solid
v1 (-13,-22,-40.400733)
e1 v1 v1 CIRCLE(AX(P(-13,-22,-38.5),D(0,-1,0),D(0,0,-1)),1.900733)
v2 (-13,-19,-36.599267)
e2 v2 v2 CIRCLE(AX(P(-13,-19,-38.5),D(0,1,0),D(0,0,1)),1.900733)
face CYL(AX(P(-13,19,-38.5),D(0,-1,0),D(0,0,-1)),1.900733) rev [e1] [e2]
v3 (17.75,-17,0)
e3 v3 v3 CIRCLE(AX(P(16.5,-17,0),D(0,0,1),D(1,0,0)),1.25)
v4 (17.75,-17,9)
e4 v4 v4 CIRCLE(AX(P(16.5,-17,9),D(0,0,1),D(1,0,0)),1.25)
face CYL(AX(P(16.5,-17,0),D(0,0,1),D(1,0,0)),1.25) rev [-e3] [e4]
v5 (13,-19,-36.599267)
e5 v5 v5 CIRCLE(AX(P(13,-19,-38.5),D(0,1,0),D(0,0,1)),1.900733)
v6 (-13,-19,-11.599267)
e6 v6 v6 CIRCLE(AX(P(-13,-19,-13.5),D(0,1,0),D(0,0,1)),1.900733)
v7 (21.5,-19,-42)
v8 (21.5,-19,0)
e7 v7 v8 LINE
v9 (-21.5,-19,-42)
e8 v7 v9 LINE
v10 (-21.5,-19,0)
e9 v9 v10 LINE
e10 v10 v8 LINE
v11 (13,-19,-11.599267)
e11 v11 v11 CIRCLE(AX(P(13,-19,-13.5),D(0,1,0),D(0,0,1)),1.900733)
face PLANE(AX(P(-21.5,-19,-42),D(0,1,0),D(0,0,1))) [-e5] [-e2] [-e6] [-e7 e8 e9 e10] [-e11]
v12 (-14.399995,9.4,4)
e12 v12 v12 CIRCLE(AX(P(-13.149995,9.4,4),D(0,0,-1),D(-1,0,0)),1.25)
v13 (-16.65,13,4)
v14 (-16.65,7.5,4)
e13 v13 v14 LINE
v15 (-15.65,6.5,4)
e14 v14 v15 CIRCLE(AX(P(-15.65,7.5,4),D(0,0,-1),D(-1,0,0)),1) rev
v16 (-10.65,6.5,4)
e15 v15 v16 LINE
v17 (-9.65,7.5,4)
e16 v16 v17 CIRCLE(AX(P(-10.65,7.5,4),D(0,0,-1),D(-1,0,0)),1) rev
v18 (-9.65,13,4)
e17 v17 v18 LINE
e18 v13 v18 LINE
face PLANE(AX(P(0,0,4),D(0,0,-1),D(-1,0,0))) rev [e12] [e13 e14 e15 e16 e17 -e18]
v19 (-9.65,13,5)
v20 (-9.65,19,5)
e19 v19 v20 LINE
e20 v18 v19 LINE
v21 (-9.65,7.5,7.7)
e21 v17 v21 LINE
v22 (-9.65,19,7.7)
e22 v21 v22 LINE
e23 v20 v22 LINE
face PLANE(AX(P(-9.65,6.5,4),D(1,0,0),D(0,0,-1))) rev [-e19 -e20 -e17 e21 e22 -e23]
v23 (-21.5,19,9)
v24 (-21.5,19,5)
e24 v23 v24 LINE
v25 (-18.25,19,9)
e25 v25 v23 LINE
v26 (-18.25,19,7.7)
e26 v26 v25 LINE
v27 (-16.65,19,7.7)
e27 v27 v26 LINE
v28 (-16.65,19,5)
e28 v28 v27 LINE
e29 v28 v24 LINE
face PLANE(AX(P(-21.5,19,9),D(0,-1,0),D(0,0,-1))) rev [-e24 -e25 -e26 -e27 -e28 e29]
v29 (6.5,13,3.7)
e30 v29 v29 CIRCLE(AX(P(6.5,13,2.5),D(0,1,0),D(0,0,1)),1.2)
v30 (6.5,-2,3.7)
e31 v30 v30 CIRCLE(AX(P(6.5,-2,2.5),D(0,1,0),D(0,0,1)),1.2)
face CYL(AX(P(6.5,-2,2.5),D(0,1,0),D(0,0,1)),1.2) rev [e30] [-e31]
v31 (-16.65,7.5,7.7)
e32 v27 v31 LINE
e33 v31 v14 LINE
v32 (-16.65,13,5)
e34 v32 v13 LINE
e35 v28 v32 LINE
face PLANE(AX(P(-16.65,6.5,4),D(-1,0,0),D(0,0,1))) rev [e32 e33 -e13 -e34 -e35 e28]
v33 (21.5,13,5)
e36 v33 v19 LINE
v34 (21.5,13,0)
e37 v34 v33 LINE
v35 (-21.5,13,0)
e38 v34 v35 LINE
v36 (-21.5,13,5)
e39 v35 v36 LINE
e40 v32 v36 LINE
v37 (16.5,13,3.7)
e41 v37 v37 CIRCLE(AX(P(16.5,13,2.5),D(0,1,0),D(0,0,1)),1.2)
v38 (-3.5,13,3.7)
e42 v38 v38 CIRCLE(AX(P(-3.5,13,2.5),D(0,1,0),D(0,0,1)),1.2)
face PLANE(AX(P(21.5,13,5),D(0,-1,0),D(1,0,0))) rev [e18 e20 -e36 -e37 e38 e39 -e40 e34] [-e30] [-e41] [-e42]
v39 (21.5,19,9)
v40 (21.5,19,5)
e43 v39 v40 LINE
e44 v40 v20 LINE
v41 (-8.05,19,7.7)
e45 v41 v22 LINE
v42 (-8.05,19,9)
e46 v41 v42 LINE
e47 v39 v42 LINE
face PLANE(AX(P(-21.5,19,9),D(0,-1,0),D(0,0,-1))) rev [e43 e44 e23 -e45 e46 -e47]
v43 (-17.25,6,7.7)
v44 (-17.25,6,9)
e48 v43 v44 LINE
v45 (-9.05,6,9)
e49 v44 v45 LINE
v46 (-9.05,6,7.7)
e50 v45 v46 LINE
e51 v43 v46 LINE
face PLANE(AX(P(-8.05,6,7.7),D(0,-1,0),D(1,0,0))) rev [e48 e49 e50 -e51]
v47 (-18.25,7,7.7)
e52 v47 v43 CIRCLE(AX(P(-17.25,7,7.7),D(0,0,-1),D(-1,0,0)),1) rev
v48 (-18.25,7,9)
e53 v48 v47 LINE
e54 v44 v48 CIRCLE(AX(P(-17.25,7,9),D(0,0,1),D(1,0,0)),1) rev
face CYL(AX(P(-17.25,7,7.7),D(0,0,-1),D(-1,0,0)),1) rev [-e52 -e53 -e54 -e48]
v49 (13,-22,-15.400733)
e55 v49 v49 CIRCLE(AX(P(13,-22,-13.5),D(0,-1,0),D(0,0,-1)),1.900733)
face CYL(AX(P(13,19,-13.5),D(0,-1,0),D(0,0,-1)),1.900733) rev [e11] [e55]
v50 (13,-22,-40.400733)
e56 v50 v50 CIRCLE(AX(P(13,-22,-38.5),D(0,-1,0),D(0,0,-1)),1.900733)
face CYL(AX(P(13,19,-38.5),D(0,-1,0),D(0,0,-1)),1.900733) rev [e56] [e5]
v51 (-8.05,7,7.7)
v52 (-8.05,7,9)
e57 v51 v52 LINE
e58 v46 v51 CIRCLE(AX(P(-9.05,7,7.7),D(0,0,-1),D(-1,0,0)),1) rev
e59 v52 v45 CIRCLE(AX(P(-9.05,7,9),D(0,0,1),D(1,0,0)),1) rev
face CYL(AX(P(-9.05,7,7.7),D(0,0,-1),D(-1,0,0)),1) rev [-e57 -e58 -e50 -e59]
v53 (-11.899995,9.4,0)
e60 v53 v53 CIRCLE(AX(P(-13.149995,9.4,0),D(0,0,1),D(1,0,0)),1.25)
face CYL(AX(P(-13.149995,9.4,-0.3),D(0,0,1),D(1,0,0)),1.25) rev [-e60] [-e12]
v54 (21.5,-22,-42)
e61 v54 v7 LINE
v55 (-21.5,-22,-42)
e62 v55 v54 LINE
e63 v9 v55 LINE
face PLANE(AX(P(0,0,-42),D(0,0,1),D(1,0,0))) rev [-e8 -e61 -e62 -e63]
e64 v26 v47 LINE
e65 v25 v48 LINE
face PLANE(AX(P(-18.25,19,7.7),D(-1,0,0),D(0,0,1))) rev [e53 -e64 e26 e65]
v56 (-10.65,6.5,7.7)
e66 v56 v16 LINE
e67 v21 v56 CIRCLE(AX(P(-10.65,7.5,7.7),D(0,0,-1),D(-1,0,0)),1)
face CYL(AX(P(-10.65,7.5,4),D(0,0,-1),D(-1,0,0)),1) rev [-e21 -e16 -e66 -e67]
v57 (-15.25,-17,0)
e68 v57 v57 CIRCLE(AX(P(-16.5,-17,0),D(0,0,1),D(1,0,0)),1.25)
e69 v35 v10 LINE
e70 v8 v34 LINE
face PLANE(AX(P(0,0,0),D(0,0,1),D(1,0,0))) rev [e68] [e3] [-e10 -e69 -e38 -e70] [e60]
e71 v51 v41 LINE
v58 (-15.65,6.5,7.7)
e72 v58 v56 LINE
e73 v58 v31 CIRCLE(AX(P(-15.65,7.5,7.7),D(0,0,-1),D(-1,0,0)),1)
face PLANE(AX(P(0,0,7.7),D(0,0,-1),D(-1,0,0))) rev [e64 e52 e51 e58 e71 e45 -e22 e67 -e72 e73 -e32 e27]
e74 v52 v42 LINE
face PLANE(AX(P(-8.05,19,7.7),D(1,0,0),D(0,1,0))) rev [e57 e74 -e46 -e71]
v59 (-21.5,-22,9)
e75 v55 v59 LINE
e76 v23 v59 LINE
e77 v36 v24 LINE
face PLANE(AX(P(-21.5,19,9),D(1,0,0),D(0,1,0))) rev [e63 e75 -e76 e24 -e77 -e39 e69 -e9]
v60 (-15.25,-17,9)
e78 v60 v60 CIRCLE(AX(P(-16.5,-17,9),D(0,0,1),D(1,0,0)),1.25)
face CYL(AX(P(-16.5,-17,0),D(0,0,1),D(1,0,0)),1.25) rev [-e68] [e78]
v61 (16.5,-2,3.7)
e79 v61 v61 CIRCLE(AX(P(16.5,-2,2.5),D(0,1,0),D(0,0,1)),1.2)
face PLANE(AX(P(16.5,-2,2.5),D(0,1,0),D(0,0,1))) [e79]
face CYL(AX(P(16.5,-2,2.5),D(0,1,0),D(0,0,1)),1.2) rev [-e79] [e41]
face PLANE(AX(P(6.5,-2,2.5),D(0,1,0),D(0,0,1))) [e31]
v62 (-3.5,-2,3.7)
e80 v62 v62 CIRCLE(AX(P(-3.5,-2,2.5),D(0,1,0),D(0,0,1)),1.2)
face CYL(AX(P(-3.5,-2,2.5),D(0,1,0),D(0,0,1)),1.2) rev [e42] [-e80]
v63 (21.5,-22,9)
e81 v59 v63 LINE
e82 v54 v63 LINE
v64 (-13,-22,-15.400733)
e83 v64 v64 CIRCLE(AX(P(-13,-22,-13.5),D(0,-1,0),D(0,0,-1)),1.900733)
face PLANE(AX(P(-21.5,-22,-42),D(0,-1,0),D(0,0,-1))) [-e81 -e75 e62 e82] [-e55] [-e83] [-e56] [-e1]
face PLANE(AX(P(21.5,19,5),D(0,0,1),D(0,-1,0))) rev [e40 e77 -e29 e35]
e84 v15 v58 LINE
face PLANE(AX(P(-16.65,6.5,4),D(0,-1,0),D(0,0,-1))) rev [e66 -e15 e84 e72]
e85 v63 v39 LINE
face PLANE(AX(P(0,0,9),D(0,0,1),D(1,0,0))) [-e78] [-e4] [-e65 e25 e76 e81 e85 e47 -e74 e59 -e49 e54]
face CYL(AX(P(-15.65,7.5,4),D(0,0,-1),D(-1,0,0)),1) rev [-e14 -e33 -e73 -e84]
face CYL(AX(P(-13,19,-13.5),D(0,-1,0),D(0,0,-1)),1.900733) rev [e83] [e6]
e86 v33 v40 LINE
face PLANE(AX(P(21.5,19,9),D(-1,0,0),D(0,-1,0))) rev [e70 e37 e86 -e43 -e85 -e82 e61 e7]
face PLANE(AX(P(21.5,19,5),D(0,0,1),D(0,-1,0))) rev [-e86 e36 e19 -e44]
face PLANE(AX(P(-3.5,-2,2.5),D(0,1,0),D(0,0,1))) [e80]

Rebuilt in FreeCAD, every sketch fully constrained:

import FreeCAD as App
import Part
import Sketcher

V = App.Vector
Q = App.Units.Quantity


def edges_at(feature, points):
    """Names of the edges that pass closest to the given points."""
    edges = feature.Shape.Edges
    near = lambda p: min(range(len(edges)), key=lambda i: edges[i].distToShape(Part.Vertex(*p))[0])
    return sorted({f"Edge{near(p) + 1}" for p in points})


def add_polygon(sketch, points):
    """Adds a closed chain of lines whose ends are joined by coincident constraints."""
    first, n = sketch.GeometryCount, len(points)
    for a, b in zip(points, points[1:] + points[:1]):
        sketch.addGeometry(Part.LineSegment(App.Vector(*a, 0), App.Vector(*b, 0)), False)
    for i in range(n):
        sketch.addConstraint(Sketcher.Constraint("Coincident", first + i, 2, first + (i + 1) % n, 1))

doc = App.newDocument("Part")
params = doc.addObject("Spreadsheet::Sheet", "Params")
for row, (alias, value) in enumerate([
    ("sketch1_width", "43 mm"),
    ("sketch1_height", "38 mm"),
    ("pad1_length", "9 mm"),
    ("sketch2_width", "43 mm"),
    ("sketch2_height", "3 mm"),
    ("pad2_length", "51 mm"),
    ("sketch4_width", "6 mm"),
    ("sketch4_height", "5 mm"),
    ("sketch5_diameter", "2.5 mm"),
    ("pocket3_length", "9 mm"),
    ("sketch6_diameter", "2.4 mm"),
    ("pocket4_length", "15 mm"),
    ("sketch7_height", "13 mm"),
    ("sketch7_width", "10.2 mm"),
    ("pocket5_length", "1.3 mm"),
    ("sketch8_width", "7 mm"),
    ("sketch8_height", "12.5 mm"),
    ("pocket6_length", "3.7 mm"),
    ("sketch9_diameter", "2.5 mm"),
    ("pocket7_length", "8 mm"),
    ("fillet_radius", "1 mm"),
    ("fillet2_radius", "1 mm"),
], start=1):
    params.set(f"A{row}", alias)
    params.set(f"B{row}", "=" + value)
    params.setAlias(f"B{row}", alias)

body = doc.addObject("PartDesign::Body", "Body")

sketch1 = doc.addObject("Sketcher::SketchObject", "Sketch")
body.addObject(sketch1)
sketch1.AttachmentSupport = (doc.XY_Plane, [""])
sketch1.MapMode = "FlatFace"
add_polygon(sketch1, [(-22, 19), (-22, -19), (22, -19), (22, 19)])
sketch1.addConstraint([
    Sketcher.Constraint("Vertical", 0),
    Sketcher.Constraint("Horizontal", 1),
    Sketcher.Constraint("Vertical", 2),
    Sketcher.Constraint("Horizontal", 3),
    Sketcher.Constraint("Symmetric", 0, 2, 2, 2, -1, 1),
    Sketcher.Constraint("DistanceX", 1, 1, 1, 2, Q("43 mm")),
    Sketcher.Constraint("DistanceY", 0, 2, 0, 1, Q("38 mm")),
])
sketch1.setExpression("Constraints[9]", "Params.sketch1_width")
sketch1.setExpression("Constraints[10]", "Params.sketch1_height")
pad1 = doc.addObject("PartDesign::Pad", "Pad")
body.addObject(pad1)
pad1.Profile = sketch1
pad1.setExpression("Length", "Params.pad1_length")

sketch2 = doc.addObject("Sketcher::SketchObject", "Sketch001")
body.addObject(sketch2)
sketch2.AttachmentSupport = (doc.XY_Plane, [""])
sketch2.MapMode = "FlatFace"
sketch2.AttachmentOffset = App.Placement(V(0, 0, 9), App.Rotation())
add_polygon(sketch2, [(-21.5, -19), (-21.5, -22), (21.5, -22), (21.5, -19)])
sketch2.addConstraint([
    Sketcher.Constraint("Vertical", 0),
    Sketcher.Constraint("Horizontal", 1),
    Sketcher.Constraint("Vertical", 2),
    Sketcher.Constraint("Horizontal", 3),
    Sketcher.Constraint("DistanceX", 1, 1, 1, 2, Q("43 mm")),
    Sketcher.Constraint("DistanceY", 0, 2, 0, 1, Q("3 mm")),
    Sketcher.Constraint("DistanceY", 0, 2, -1, 1, Q("22 mm")),
    Sketcher.Constraint("DistanceX", 0, 2, -1, 1, Q("21.5 mm")),
])
sketch2.setExpression("Constraints[8]", "Params.sketch2_width")
sketch2.setExpression("Constraints[9]", "Params.sketch2_height")
pad2 = doc.addObject("PartDesign::Pad", "Pad001")
body.addObject(pad2)
pad2.Profile = sketch2
pad2.setExpression("Length", "Params.pad2_length")
pad2.Reversed = True

sketch3 = doc.addObject("Sketcher::SketchObject", "Sketch002")
body.addObject(sketch3)
sketch3.AttachmentSupport = (doc.XZ_Plane, [""])
sketch3.MapMode = "FlatFace"
sketch3.AttachmentOffset = App.Placement(V(0, 0, 22), App.Rotation())
sketch3.addGeometry([
    Part.Circle(V(-13, -38.5, 0), V(0, 0, 1), 1.9),
    Part.Circle(V(13, -38.5, 0), V(0, 0, 1), 1.9),
    Part.Circle(V(13, -13.5, 0), V(0, 0, 1), 1.9),
    Part.Circle(V(-13, -13.5, 0), V(0, 0, 1), 1.9),
], False)
sketch3.addConstraint([
    Sketcher.Constraint("Equal", 0, 1),
    Sketcher.Constraint("Equal", 1, 2),
    Sketcher.Constraint("Equal", 2, 3),
    Sketcher.Constraint("Symmetric", 0, 3, 1, 3, -2),
    Sketcher.Constraint("Symmetric", 2, 3, 3, 3, -2),
    Sketcher.Constraint("Vertical", 1, 3, 2, 3),
    Sketcher.Constraint("DistanceX", 0, 3, -1, 1, Q("13 mm")),
    Sketcher.Constraint("DistanceY", 1, 3, 2, 3, Q("25 mm")),
    Sketcher.Constraint("DistanceY", 0, 3, -1, 1, Q("38.5 mm")),
    Sketcher.Constraint("Diameter", 0, Q("3.801467 mm")),
])
pocket1 = doc.addObject("PartDesign::Pocket", "Pocket")
body.addObject(pocket1)
pocket1.Profile = sketch3
pocket1.Type = "ThroughAll"

sketch4 = doc.addObject("Sketcher::SketchObject", "Sketch003")
body.addObject(sketch4)
sketch4.AttachmentSupport = (doc.YZ_Plane, [""])
sketch4.MapMode = "FlatFace"
sketch4.AttachmentOffset = App.Placement(V(0, 0, -21.5), App.Rotation())
add_polygon(sketch4, [(19, 0), (13, 0), (13, 5), (19, 5)])
sketch4.addConstraint([
    Sketcher.Constraint("Horizontal", 0),
    Sketcher.Constraint("Vertical", 1),
    Sketcher.Constraint("Horizontal", 2),
    Sketcher.Constraint("Vertical", 3),
    Sketcher.Constraint("PointOnObject", 0, 2, -1),
    Sketcher.Constraint("DistanceX", 0, 2, 0, 1, Q("6 mm")),
    Sketcher.Constraint("DistanceY", 1, 1, 1, 2, Q("5 mm")),
    Sketcher.Constraint("DistanceX", -1, 1, 0, 2, Q("13 mm")),
])
sketch4.setExpression("Constraints[9]", "Params.sketch4_width")
sketch4.setExpression("Constraints[10]", "Params.sketch4_height")
pocket2 = doc.addObject("PartDesign::Pocket", "Pocket001")
body.addObject(pocket2)
pocket2.Profile = sketch4
pocket2.Type = "ThroughAll"
pocket2.Reversed = True

sketch5 = doc.addObject("Sketcher::SketchObject", "Sketch004")
body.addObject(sketch5)
sketch5.AttachmentSupport = (doc.XY_Plane, [""])
sketch5.MapMode = "FlatFace"
sketch5.AttachmentOffset = App.Placement(V(0, 0, 9), App.Rotation())
sketch5.addGeometry([
    Part.Circle(V(16.5, -17, 0), V(0, 0, 1), 1.2),
    Part.Circle(V(-16.5, -17, 0), V(0, 0, 1), 1.2),
], False)
sketch5.addConstraint([
    Sketcher.Constraint("Equal", 0, 1),
    Sketcher.Constraint("Symmetric", 0, 3, 1, 3, -2),
    Sketcher.Constraint("Diameter", 0, Q("2.5 mm")),
    Sketcher.Constraint("DistanceY", 0, 3, -1, 1, Q("17 mm")),
    Sketcher.Constraint("DistanceX", 1, 3, 0, 3, Q("33 mm")),
])
sketch5.setExpression("Constraints[2]", "Params.sketch5_diameter")
pocket3 = doc.addObject("PartDesign::Pocket", "Pocket002")
body.addObject(pocket3)
pocket3.Profile = sketch5
pocket3.setExpression("Length", "Params.pocket3_length")

sketch6 = doc.addObject("Sketcher::SketchObject", "Sketch005")
body.addObject(sketch6)
sketch6.AttachmentSupport = (doc.XZ_Plane, [""])
sketch6.MapMode = "FlatFace"
sketch6.AttachmentOffset = App.Placement(V(0, 0, -13), App.Rotation())
sketch6.addGeometry([
    Part.Circle(V(16.5, 2.5, 0), V(0, 0, 1), 1.2),
    Part.Circle(V(6.5, 2.5, 0), V(0, 0, 1), 1.2),
    Part.Circle(V(-3.5, 2.5, 0), V(0, 0, 1), 1.2),
], False)
sketch6.addConstraint([
    Sketcher.Constraint("Equal", 0, 1),
    Sketcher.Constraint("Equal", 1, 2),
    Sketcher.Constraint("Horizontal", 0, 3, 1, 3),
    Sketcher.Constraint("Horizontal", 1, 3, 2, 3),
    Sketcher.Constraint("Diameter", 0, Q("2.4 mm")),
    Sketcher.Constraint("DistanceX", 1, 3, 0, 3, Q("10 mm")),
    Sketcher.Constraint("DistanceX", 2, 3, 1, 3, Q("10 mm")),
    Sketcher.Constraint("DistanceX", -1, 1, 0, 3, Q("16.5 mm")),
    Sketcher.Constraint("DistanceY", -1, 1, 0, 3, Q("2.5 mm")),
])
sketch6.setExpression("Constraints[4]", "Params.sketch6_diameter")
pocket4 = doc.addObject("PartDesign::Pocket", "Pocket003")
body.addObject(pocket4)
pocket4.Profile = sketch6
pocket4.setExpression("Length", "Params.pocket4_length")
pocket4.Reversed = True

sketch7 = doc.addObject("Sketcher::SketchObject", "Sketch006")
body.addObject(sketch7)
sketch7.AttachmentSupport = (doc.XY_Plane, [""])
sketch7.MapMode = "FlatFace"
sketch7.AttachmentOffset = App.Placement(V(0, 0, 9), App.Rotation())
add_polygon(sketch7, [(-18, 19), (-18, 6), (-8, 6), (-8, 19)])
sketch7.addConstraint([
    Sketcher.Constraint("Vertical", 0),
    Sketcher.Constraint("Horizontal", 1),
    Sketcher.Constraint("Vertical", 2),
    Sketcher.Constraint("Horizontal", 3),
    Sketcher.Constraint("DistanceY", 0, 2, 0, 1, Q("13 mm")),
    Sketcher.Constraint("DistanceX", 1, 1, 1, 2, Q("10.2 mm")),
    Sketcher.Constraint("DistanceY", -1, 1, 0, 2, Q("6 mm")),
    Sketcher.Constraint("DistanceX", 0, 2, -1, 1, Q("18.25 mm")),
])
sketch7.setExpression("Constraints[8]", "Params.sketch7_height")
sketch7.setExpression("Constraints[9]", "Params.sketch7_width")
pocket5 = doc.addObject("PartDesign::Pocket", "Pocket004")
body.addObject(pocket5)
pocket5.Profile = sketch7
pocket5.setExpression("Length", "Params.pocket5_length")

sketch8 = doc.addObject("Sketcher::SketchObject", "Sketch007")
body.addObject(sketch8)
sketch8.AttachmentSupport = (doc.XY_Plane, [""])
sketch8.MapMode = "FlatFace"
sketch8.AttachmentOffset = App.Placement(V(0, 0, 7.7), App.Rotation())
add_polygon(sketch8, [(-17, 19), (-17, 6), (-10, 6), (-10, 19)])
sketch8.addConstraint([
    Sketcher.Constraint("Vertical", 0),
    Sketcher.Constraint("Horizontal", 1),
    Sketcher.Constraint("Vertical", 2),
    Sketcher.Constraint("Horizontal", 3),
    Sketcher.Constraint("DistanceX", 1, 1, 1, 2, Q("7 mm")),
    Sketcher.Constraint("DistanceY", 0, 2, 0, 1, Q("12.5 mm")),
    Sketcher.Constraint("DistanceY", -1, 1, 2, 2, Q("19 mm")),
    Sketcher.Constraint("DistanceX", 0, 2, -1, 1, Q("16.65 mm")),
])
sketch8.setExpression("Constraints[8]", "Params.sketch8_width")
sketch8.setExpression("Constraints[9]", "Params.sketch8_height")
pocket6 = doc.addObject("PartDesign::Pocket", "Pocket005")
body.addObject(pocket6)
pocket6.Profile = sketch8
pocket6.setExpression("Length", "Params.pocket6_length")

sketch9 = doc.addObject("Sketcher::SketchObject", "Sketch008")
body.addObject(sketch9)
sketch9.AttachmentSupport = (doc.XY_Plane, [""])
sketch9.MapMode = "FlatFace"
sketch9.AttachmentOffset = App.Placement(V(0, 0, 7.7), App.Rotation())
sketch9.addGeometry(Part.Circle(V(-13.1, 9.4, 0), V(0, 0, 1), 1.2), False)
sketch9.addConstraint([
    Sketcher.Constraint("Diameter", 0, Q("2.5 mm")),
    Sketcher.Constraint("DistanceY", -1, 1, 0, 3, Q("9.4 mm")),
    Sketcher.Constraint("DistanceX", 0, 3, -1, 1, Q("13.149995 mm")),
])
sketch9.setExpression("Constraints[0]", "Params.sketch9_diameter")
pocket7 = doc.addObject("PartDesign::Pocket", "Pocket006")
body.addObject(pocket7)
pocket7.Profile = sketch9
pocket7.setExpression("Length", "Params.pocket7_length")
doc.recompute()

fillet = doc.addObject("PartDesign::Fillet", "Fillet")
body.addObject(fillet)
fillet.Base = (pocket7, edges_at(pocket7, [(-16.65, 6.5, 5.85), (-9.65, 6.5, 5.85)]))
fillet.setExpression("Radius", "Params.fillet_radius")
doc.recompute()

fillet2 = doc.addObject("PartDesign::Fillet", "Fillet001")
body.addObject(fillet2)
fillet2.Base = (fillet, edges_at(fillet, [(-8.05, 6, 8.35), (-18.25, 6, 8.35)]))
fillet2.setExpression("Radius", "Params.fillet2_radius")

doc.recompute()
